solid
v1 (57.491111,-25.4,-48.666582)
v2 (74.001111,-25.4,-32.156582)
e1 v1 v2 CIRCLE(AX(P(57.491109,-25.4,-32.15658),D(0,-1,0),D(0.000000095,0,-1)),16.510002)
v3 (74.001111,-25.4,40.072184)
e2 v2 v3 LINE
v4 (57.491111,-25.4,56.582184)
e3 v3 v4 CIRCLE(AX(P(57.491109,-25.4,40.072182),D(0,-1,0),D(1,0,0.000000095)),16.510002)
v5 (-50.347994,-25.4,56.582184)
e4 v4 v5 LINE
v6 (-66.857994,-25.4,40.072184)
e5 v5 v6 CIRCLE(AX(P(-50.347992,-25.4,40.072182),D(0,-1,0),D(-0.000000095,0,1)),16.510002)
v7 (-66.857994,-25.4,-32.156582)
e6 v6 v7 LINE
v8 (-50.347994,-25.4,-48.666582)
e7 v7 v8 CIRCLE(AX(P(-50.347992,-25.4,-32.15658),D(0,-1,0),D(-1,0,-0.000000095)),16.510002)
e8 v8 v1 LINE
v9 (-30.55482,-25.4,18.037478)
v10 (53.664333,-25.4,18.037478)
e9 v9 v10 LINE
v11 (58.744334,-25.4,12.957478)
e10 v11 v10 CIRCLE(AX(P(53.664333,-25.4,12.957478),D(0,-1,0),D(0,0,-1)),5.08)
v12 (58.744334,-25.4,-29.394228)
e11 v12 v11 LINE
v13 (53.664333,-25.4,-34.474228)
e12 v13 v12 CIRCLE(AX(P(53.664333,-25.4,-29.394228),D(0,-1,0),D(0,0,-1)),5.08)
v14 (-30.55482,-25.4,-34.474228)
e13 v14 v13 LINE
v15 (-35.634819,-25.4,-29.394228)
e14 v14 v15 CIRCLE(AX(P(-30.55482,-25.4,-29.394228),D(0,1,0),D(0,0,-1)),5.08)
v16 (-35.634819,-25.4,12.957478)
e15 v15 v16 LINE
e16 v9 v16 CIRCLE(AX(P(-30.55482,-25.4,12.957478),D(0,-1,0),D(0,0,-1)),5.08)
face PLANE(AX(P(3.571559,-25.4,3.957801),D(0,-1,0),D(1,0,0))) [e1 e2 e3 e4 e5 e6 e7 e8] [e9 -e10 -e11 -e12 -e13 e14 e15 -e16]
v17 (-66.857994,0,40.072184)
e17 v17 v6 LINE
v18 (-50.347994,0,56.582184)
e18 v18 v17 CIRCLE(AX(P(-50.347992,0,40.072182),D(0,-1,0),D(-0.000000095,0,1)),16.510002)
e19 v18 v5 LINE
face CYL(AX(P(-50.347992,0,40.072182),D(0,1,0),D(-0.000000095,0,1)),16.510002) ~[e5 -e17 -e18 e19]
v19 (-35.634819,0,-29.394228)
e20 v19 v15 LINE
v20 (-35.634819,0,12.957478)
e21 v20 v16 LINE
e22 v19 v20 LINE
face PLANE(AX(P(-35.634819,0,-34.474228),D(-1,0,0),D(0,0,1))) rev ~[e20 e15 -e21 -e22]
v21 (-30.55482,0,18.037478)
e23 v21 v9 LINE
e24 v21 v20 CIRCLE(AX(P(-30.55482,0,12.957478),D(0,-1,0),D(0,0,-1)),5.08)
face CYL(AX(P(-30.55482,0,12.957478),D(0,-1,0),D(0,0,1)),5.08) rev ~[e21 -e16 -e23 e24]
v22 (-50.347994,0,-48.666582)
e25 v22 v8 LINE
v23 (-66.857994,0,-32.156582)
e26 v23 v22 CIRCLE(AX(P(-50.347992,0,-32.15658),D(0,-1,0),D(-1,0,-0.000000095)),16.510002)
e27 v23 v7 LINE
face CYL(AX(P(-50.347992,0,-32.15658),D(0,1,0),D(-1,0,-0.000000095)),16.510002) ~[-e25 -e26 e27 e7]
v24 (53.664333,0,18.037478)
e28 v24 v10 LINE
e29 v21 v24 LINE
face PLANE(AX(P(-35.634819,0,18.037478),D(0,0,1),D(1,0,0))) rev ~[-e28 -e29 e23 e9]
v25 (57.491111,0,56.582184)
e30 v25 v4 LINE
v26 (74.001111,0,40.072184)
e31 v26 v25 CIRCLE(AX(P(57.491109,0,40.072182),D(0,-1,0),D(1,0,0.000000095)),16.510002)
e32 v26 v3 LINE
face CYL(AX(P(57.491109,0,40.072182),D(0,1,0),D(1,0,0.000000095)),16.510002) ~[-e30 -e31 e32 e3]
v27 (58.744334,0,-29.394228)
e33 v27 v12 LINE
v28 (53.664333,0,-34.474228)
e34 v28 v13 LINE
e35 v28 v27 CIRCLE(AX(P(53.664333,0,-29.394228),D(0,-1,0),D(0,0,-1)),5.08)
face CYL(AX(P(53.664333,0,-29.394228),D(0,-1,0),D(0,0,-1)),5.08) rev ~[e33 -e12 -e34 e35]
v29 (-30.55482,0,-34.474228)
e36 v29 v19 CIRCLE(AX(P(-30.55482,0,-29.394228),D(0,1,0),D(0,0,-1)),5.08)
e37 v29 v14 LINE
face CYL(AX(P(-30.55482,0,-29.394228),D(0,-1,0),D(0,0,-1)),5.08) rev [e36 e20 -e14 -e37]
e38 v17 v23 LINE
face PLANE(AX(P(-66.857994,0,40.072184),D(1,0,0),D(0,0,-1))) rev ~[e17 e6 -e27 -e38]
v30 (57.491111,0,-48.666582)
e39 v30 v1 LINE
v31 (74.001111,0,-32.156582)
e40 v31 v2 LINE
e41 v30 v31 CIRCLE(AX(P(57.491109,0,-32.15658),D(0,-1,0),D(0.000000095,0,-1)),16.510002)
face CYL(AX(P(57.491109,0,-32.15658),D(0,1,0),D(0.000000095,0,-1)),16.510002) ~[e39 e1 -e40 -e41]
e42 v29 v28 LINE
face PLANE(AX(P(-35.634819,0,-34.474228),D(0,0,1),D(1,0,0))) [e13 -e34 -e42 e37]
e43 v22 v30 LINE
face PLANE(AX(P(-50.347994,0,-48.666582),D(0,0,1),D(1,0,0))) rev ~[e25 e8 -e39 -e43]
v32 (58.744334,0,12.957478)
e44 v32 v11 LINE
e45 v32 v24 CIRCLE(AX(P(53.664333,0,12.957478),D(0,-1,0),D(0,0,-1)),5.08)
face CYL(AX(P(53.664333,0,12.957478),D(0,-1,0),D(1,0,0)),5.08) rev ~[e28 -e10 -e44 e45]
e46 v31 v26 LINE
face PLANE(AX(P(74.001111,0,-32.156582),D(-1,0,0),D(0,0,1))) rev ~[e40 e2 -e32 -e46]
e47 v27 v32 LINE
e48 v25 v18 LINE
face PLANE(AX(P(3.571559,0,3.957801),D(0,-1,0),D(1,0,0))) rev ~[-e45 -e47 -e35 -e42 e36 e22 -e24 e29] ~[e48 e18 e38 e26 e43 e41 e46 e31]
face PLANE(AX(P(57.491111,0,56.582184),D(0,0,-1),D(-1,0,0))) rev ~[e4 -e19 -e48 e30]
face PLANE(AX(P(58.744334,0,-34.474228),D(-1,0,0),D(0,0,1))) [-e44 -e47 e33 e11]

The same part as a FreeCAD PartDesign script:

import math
import FreeCAD as App
import Part
import Sketcher

V = App.Vector
Q = App.Units.Quantity


def edges_at(feature, points):
    """Names of the edges that pass closest to the given points."""
    edges = feature.Shape.Edges
    near = lambda p: min(range(len(edges)), key=lambda i: edges[i].distToShape(Part.Vertex(*p))[0])
    return sorted({f"Edge{near(p) + 1}" for p in points})

doc = App.newDocument("Part")
params = doc.addObject("Spreadsheet::Sheet", "Params")
for row, (alias, value) in enumerate([
    ("sketch1_radius", "0.6500001 in"),
    ("pad1_length", "1 in"),
    ("fillet_radius", "0.2 in"),
], start=1):
    params.set(f"A{row}", alias)
    params.set(f"B{row}", "=" + value)
    params.setAlias(f"B{row}", alias)

body = doc.addObject("PartDesign::Body", "Body")

# Sketch on XZ plane
sketch1 = body.newObject("Sketcher::SketchObject", "Sketch")
sketch1.AttachmentSupport = (doc.getObject("XZ_Plane"), [""])
sketch1.MapMode = "FlatFace"
sketch1.addGeometry(Part.LineSegment(V(57, 57, 0), V(-50, 57, 0)), False)
sketch1.addGeometry(Part.ArcOfCircle(Part.Circle(V(-50, 40, 0), V(0, 0, 1), 17), math.radians(90), math.radians(180)), False)
sketch1.addGeometry(Part.LineSegment(V(-67, 40, 0), V(-67, -32, 0)), False)
sketch1.addGeometry(Part.ArcOfCircle(Part.Circle(V(-50, -32, 0), V(0, 0, 1), 17), math.radians(-180), math.radians(-90)), False)
sketch1.addGeometry(Part.LineSegment(V(-50, -49, 0), V(57, -49, 0)), False)
sketch1.addGeometry(Part.ArcOfCircle(Part.Circle(V(57, -32, 0), V(0, 0, 1), 17), math.radians(-90), math.radians(0)), False)
sketch1.addGeometry(Part.LineSegment(V(74, -32, 0), V(74, 40, 0)), False)
sketch1.addGeometry(Part.ArcOfCircle(Part.Circle(V(57, 40, 0), V(0, 0, 1), 17), math.radians(0), math.radians(90)), False)
sketch1.addGeometry(Part.LineSegment(V(59, -34, 0), V(-36, -34, 0)), False)
sketch1.addGeometry(Part.LineSegment(V(-36, -34, 0), V(-36, 18, 0)), False)
sketch1.addGeometry(Part.LineSegment(V(-36, 18, 0), V(59, 18, 0)), False)
sketch1.addGeometry(Part.LineSegment(V(59, 18, 0), V(59, -34, 0)), False)
sketch1.addConstraint(Sketcher.Constraint("Tangent", 0, 2, 1, 1))
sketch1.addConstraint(Sketcher.Constraint("Tangent", 1, 2, 2, 1))
sketch1.addConstraint(Sketcher.Constraint("Tangent", 2, 2, 3, 1))
sketch1.addConstraint(Sketcher.Constraint("Tangent", 3, 2, 4, 1))
sketch1.addConstraint(Sketcher.Constraint("Tangent", 4, 2, 5, 1))
sketch1.addConstraint(Sketcher.Constraint("Tangent", 5, 2, 6, 1))
sketch1.addConstraint(Sketcher.Constraint("Tangent", 6, 2, 7, 1))
sketch1.addConstraint(Sketcher.Constraint("Tangent", 7, 2, 0, 1))
sketch1.addConstraint(Sketcher.Constraint("Coincident", 8, 2, 9, 1))
sketch1.addConstraint(Sketcher.Constraint("Coincident", 9, 2, 10, 1))
sketch1.addConstraint(Sketcher.Constraint("Coincident", 10, 2, 11, 1))
sketch1.addConstraint(Sketcher.Constraint("Coincident", 11, 2, 8, 1))
sketch1.addConstraint(Sketcher.Constraint("Horizontal", 0))
sketch1.addConstraint(Sketcher.Constraint("Vertical", 2))
sketch1.addConstraint(Sketcher.Constraint("Horizontal", 4))
sketch1.addConstraint(Sketcher.Constraint("Vertical", 6))
sketch1.addConstraint(Sketcher.Constraint("Horizontal", 8))
sketch1.addConstraint(Sketcher.Constraint("Vertical", 9))
sketch1.addConstraint(Sketcher.Constraint("Horizontal", 10))
sketch1.addConstraint(Sketcher.Constraint("Vertical", 11))
sketch1.addConstraint(Sketcher.Constraint("Equal", 1, 3))
sketch1.addConstraint(Sketcher.Constraint("Equal", 3, 5))
sketch1.addConstraint(Sketcher.Constraint("Equal", 5, 7))
sketch1.addConstraint(Sketcher.Constraint("Radius", 1, Q("0.6500001 in")))
sketch1.addConstraint(Sketcher.Constraint("DistanceX", 3, 3, 5, 3, Q("107.839102 mm")))
sketch1.addConstraint(Sketcher.Constraint("DistanceX", 8, 2, 8, 1, Q("94.379153 mm")))
sketch1.addConstraint(Sketcher.Constraint("DistanceY", 2, 2, 2, 1, Q("72.228766 mm")))
sketch1.addConstraint(Sketcher.Constraint("DistanceY", 9, 1, 9, 2, Q("52.511706 mm")))
sketch1.addConstraint(Sketcher.Constraint("DistanceY", 3, 3, -1, 1, Q("32.15658 mm")))
sketch1.addConstraint(Sketcher.Constraint("DistanceX", -1, 1, 5, 3, Q("57.491109 mm")))
sketch1.addConstraint(Sketcher.Constraint("DistanceX", 8, 2, -1, 1, Q("35.634819 mm")))
sketch1.addConstraint(Sketcher.Constraint("DistanceY", -1, 1, 9, 2, Q("18.037478 mm")))
sketch1.setExpression("Constraints[23]", "Params.sketch1_radius")
pad1 = body.newObject("PartDesign::Pad", "Pad")
pad1.Profile = sketch1
pad1.setExpression("Length", "Params.pad1_length")
doc.recompute()

fillet = body.newObject("PartDesign::Fillet", "Fillet")
fillet.Base = (pad1, edges_at(pad1, [
    (-35.635, -12.7, 18.037),
    (58.744, -12.7, 18.037),
    (58.744, -12.7, -34.474),
    (-35.635, -12.7, -34.474),
]))
fillet.setExpression("Radius", "Params.fillet_radius")

doc.recompute()
